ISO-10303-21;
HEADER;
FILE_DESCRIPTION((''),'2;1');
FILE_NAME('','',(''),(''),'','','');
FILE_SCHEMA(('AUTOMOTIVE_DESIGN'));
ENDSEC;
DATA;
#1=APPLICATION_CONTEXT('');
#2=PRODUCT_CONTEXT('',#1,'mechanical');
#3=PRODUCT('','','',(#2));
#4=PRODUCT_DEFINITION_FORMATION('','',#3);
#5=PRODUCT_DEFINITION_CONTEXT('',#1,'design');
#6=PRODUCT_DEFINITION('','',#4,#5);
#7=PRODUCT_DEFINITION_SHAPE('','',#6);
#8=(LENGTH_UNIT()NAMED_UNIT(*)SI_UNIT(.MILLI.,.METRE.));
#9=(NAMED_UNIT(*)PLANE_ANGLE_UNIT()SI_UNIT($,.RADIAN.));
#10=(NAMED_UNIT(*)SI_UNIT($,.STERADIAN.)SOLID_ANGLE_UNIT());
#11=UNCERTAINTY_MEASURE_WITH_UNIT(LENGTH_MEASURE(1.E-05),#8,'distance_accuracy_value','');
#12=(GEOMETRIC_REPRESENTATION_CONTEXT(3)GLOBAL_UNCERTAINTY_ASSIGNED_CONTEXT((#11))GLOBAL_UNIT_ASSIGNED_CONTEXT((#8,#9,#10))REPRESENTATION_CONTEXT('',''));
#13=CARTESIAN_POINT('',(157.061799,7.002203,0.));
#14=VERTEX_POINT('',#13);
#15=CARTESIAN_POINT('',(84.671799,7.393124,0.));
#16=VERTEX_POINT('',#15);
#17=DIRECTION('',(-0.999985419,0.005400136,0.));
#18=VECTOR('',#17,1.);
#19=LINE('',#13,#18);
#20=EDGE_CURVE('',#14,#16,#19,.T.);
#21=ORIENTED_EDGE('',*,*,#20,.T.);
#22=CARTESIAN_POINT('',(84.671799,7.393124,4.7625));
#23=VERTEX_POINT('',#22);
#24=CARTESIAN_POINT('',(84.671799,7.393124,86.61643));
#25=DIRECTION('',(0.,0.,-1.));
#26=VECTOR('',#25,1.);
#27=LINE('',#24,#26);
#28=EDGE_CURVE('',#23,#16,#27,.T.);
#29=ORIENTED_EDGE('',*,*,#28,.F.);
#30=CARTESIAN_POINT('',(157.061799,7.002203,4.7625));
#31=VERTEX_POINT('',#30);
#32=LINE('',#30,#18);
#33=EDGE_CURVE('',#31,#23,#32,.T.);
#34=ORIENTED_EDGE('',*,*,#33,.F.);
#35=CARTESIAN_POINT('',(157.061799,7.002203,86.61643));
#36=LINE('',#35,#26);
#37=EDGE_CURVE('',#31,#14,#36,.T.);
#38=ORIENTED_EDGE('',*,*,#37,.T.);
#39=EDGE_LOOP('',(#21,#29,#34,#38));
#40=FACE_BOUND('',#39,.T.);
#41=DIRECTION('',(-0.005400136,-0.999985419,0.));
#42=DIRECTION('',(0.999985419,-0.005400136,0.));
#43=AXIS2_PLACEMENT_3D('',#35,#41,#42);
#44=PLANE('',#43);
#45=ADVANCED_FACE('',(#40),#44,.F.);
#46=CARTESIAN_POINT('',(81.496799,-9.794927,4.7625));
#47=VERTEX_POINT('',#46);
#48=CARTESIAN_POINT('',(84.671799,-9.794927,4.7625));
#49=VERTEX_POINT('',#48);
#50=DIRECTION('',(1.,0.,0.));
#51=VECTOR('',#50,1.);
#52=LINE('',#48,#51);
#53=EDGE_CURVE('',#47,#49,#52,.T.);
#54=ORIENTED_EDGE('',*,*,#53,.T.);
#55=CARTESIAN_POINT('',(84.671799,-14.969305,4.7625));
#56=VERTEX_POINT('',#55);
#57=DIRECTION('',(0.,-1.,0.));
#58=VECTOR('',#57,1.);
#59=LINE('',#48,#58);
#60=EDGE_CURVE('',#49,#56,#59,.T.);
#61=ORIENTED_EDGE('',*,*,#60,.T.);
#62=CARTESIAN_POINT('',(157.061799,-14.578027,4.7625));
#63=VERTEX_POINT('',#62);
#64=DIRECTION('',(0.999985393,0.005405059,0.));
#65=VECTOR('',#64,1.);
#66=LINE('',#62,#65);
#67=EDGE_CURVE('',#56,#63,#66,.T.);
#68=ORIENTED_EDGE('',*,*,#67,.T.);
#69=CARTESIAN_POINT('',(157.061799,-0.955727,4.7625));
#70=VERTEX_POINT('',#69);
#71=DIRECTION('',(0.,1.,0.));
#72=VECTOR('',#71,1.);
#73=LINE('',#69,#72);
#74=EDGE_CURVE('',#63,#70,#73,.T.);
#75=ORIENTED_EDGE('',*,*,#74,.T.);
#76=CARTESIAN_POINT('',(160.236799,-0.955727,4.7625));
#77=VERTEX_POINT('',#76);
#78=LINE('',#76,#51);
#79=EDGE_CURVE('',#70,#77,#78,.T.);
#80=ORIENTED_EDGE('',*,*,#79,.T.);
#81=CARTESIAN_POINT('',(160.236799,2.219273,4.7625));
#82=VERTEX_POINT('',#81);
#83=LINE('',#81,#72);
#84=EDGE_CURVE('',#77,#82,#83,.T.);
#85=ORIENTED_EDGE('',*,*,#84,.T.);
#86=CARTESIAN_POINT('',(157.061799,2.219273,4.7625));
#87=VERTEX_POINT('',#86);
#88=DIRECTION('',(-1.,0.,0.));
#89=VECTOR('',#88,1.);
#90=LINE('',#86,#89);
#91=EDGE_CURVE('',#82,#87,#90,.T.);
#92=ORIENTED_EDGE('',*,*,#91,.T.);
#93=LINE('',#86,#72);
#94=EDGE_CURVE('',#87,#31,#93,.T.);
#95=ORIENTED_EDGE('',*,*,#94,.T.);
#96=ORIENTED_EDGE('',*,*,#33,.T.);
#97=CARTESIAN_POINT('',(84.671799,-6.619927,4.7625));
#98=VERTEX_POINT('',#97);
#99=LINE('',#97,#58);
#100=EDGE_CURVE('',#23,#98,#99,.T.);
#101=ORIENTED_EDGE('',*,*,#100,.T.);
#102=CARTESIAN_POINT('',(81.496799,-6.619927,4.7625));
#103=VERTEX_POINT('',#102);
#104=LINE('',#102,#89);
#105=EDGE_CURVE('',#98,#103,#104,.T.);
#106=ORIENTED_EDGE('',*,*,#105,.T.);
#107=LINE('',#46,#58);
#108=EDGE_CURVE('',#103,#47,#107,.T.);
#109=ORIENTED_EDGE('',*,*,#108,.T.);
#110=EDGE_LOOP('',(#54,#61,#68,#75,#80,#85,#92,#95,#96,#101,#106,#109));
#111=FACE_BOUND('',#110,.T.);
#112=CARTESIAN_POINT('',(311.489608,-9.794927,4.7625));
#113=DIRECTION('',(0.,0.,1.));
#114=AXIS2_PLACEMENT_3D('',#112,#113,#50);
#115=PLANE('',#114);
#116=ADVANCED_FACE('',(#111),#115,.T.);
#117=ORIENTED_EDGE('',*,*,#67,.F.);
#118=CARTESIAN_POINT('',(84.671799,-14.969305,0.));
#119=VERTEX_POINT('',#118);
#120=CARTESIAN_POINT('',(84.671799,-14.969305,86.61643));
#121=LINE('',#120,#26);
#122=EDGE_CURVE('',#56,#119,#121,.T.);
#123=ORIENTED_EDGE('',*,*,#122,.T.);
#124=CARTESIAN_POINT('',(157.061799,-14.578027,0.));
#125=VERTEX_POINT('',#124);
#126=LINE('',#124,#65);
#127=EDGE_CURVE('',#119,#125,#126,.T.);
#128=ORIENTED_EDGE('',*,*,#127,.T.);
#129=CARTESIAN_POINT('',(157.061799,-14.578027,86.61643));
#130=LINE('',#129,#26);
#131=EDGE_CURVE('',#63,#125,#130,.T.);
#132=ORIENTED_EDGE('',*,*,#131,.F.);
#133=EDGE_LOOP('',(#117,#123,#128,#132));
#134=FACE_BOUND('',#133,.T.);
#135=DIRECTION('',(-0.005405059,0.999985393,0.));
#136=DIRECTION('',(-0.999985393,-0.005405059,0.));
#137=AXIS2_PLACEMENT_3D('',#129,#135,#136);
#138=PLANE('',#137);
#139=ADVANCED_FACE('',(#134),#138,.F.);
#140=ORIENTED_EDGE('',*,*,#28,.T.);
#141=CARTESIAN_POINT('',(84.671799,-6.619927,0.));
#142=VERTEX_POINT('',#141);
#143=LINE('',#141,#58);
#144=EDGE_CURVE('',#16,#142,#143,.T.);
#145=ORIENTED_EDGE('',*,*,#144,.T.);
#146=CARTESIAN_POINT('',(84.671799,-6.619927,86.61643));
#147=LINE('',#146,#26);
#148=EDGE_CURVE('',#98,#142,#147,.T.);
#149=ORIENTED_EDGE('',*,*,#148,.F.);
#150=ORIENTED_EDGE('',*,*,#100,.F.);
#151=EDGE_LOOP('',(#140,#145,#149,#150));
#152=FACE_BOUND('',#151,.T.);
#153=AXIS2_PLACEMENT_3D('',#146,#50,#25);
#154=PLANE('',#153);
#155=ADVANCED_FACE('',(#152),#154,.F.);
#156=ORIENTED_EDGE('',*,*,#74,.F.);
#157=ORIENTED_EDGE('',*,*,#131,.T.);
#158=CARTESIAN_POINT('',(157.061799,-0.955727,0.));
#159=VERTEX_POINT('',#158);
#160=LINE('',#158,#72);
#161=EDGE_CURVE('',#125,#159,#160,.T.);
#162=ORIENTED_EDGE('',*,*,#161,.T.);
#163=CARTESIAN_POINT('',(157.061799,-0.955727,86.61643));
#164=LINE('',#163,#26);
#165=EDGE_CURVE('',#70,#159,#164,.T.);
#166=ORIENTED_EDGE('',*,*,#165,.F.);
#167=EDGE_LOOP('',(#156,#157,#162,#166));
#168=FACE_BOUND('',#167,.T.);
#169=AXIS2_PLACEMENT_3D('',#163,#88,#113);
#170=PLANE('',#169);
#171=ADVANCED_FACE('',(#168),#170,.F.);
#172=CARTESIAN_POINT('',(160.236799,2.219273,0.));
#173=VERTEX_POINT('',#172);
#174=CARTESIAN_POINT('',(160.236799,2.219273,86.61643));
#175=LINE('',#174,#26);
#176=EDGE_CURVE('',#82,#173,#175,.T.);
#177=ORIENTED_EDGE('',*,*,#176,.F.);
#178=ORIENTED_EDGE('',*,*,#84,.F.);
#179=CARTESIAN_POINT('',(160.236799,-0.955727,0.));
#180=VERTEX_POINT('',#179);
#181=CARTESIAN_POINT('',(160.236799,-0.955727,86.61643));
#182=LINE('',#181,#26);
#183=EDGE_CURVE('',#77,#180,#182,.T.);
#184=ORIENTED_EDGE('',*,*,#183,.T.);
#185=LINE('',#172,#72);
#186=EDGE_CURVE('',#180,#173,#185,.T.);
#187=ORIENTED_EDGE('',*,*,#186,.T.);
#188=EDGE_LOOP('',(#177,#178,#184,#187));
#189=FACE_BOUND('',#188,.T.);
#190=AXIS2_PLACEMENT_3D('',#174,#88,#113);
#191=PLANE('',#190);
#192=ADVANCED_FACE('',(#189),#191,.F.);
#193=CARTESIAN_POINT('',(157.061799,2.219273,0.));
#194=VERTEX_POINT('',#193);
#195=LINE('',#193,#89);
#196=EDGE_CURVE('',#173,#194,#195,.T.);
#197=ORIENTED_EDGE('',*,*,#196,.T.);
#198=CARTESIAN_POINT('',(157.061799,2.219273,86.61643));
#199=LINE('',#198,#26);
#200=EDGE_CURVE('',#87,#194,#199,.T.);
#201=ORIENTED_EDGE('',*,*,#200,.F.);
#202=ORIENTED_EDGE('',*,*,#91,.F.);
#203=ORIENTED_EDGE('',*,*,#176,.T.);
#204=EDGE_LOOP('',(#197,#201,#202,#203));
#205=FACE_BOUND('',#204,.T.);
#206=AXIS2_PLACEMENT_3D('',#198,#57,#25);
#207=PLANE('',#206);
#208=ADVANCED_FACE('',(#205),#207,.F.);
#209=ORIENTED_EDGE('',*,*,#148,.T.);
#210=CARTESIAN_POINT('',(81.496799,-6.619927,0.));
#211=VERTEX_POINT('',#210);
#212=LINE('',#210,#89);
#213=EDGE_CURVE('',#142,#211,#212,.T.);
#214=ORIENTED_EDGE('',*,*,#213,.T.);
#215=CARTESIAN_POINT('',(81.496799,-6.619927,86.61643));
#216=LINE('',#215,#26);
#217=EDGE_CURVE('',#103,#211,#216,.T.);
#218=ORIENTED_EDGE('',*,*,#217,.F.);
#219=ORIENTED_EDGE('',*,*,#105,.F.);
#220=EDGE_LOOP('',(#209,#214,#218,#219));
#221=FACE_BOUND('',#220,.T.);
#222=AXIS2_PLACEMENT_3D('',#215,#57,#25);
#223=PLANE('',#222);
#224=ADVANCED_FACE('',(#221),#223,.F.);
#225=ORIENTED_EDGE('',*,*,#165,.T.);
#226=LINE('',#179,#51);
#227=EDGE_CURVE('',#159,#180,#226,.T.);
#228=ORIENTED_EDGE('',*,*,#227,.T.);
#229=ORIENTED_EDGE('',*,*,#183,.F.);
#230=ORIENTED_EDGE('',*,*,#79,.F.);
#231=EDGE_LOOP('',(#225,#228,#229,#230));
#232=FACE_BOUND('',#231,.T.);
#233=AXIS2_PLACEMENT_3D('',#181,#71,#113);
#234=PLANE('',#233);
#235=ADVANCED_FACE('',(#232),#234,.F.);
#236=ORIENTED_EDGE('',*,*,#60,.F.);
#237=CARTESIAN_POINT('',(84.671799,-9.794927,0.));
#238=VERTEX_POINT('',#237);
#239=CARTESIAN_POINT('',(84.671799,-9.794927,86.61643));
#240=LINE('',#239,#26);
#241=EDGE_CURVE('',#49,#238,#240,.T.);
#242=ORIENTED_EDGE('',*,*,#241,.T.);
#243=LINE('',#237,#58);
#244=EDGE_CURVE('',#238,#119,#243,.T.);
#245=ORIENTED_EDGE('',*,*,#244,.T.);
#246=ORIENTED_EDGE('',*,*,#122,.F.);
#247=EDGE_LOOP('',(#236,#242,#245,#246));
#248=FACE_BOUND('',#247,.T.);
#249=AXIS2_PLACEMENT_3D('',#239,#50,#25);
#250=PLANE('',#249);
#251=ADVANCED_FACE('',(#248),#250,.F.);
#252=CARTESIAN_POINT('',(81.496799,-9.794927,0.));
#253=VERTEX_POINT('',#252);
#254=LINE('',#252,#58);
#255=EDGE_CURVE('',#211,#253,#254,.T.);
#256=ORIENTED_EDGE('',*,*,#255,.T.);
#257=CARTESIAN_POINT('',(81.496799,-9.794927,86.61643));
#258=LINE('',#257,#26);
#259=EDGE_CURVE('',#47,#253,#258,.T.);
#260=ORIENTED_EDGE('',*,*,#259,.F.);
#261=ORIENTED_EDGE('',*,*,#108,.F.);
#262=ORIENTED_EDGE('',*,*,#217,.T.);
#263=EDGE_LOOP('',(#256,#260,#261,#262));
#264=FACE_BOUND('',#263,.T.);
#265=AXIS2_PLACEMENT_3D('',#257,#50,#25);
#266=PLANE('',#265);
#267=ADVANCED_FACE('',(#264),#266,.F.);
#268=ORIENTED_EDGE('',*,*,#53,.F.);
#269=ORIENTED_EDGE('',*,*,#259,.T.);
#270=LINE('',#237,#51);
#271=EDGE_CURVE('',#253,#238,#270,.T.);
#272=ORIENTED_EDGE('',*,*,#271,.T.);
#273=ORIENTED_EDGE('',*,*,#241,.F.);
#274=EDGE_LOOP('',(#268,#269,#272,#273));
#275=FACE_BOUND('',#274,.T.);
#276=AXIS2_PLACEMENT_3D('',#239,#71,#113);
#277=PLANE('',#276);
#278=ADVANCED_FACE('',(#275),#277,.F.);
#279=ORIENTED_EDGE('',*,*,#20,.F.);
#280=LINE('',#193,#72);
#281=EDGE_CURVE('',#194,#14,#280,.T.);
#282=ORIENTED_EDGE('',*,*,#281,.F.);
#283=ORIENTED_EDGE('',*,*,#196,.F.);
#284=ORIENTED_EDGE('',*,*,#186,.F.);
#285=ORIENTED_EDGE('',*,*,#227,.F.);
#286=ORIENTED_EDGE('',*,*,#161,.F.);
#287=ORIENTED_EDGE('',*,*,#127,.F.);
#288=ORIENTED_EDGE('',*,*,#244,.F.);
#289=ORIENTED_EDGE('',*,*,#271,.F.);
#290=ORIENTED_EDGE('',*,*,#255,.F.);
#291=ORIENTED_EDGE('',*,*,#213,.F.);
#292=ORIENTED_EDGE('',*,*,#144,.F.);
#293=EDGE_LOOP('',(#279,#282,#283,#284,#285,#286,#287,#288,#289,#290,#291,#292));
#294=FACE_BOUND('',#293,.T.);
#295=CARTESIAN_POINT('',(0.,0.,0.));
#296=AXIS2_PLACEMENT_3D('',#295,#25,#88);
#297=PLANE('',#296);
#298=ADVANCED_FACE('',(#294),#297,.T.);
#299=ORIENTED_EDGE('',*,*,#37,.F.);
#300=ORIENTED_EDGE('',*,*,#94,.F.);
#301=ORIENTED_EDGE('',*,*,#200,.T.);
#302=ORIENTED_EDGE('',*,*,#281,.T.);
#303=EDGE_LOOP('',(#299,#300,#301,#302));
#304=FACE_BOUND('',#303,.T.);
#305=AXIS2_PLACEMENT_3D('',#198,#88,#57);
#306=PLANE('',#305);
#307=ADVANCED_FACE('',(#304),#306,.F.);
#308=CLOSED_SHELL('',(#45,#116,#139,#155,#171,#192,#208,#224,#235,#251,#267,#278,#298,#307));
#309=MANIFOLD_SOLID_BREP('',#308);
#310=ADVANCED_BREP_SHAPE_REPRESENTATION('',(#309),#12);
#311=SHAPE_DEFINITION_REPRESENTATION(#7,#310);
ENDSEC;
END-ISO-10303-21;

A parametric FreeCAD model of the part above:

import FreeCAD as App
import Part
import Sketcher

V = App.Vector
Q = App.Units.Quantity


def add_polygon(sketch, points):
    """Adds a closed chain of lines whose ends are joined by coincident constraints."""
    first, n = sketch.GeometryCount, len(points)
    for a, b in zip(points, points[1:] + points[:1]):
        sketch.addGeometry(Part.LineSegment(App.Vector(*a, 0), App.Vector(*b, 0)), False)
    for i in range(n):
        sketch.addConstraint(Sketcher.Constraint("Coincident", first + i, 2, first + (i + 1) % n, 1))

doc = App.newDocument("Part")
body = doc.addObject("PartDesign::Body", "Body")

sketch1 = body.newObject("Sketcher::SketchObject", "Sketch")
sketch1.AttachmentSupport = (doc.getObject("XY_Plane"), [""])
sketch1.MapMode = "FlatFace"
add_polygon(sketch1, [(81.496799, -9.794927), (84.671799, -9.794927), (84.671799, -14.969305), (157.061799, -14.578027), (157.061799, -0.955727), (160.236799, -0.955727), (160.236799, 2.219273), (157.061799, 2.219273), (157.061799, 7.002203), (84.671799, 7.393124), (84.671799, -6.619927), (81.496799, -6.619927)])
sketch1.addConstraint(Sketcher.Constraint("Horizontal", 0))
sketch1.addConstraint(Sketcher.Constraint("Vertical", 1))
sketch1.addConstraint(Sketcher.Constraint("Vertical", 3))
sketch1.addConstraint(Sketcher.Constraint("Horizontal", 4))
sketch1.addConstraint(Sketcher.Constraint("Vertical", 5))
sketch1.addConstraint(Sketcher.Constraint("Horizontal", 6))
sketch1.addConstraint(Sketcher.Constraint("Vertical", 7))
sketch1.addConstraint(Sketcher.Constraint("Vertical", 9))
sketch1.addConstraint(Sketcher.Constraint("Horizontal", 10))
sketch1.addConstraint(Sketcher.Constraint("Vertical", 11))
sketch1.addConstraint(Sketcher.Constraint("DistanceX", 0, 1, 0, 2, Q("0.125 in")))
sketch1.addConstraint(Sketcher.Constraint("DistanceX", 4, 1, 4, 2, Q("0.125 in")))
sketch1.addConstraint(Sketcher.Constraint("DistanceX", 6, 2, 6, 1, Q("0.125 in")))
sketch1.addConstraint(Sketcher.Constraint("DistanceX", 10, 2, 10, 1, Q("0.125 in")))
sketch1.addConstraint(Sketcher.Constraint("DistanceY", 5, 1, 5, 2, Q("0.125 in")))
sketch1.addConstraint(Sketcher.Constraint("DistanceY", 11, 2, 11, 1, Q("0.125 in")))
sketch1.addConstraint(Sketcher.Constraint("DistanceX", 1, 2, 2, 2, Q("2.85 in")))
sketch1.addConstraint(Sketcher.Constraint("DistanceY", 0, 2, 3, 2, Q("0.348 in")))
sketch1.addConstraint(Sketcher.Constraint("DistanceY", 3, 1, 3, 2, Q("13.6223 mm")))
sketch1.addConstraint(Sketcher.Constraint("DistanceY", 7, 1, 7, 2, Q("4.78293 mm")))
sketch1.addConstraint(Sketcher.Constraint("DistanceY", 9, 2, 9, 1, Q("14.013052 mm")))
sketch1.addConstraint(Sketcher.Constraint("DistanceX", -1, 1, 0, 2, Q("84.671799 mm")))
sketch1.addConstraint(Sketcher.Constraint("DistanceY", 1, 2, 1, 1, Q("5.174378 mm")))
sketch1.addConstraint(Sketcher.Constraint("DistanceY", 0, 2, -1, 1, Q("9.794927 mm")))
pad1 = body.newObject("PartDesign::Pad", "Pad")
pad1.Profile = sketch1
pad1.Length = Q("0.1875 in")

doc.recompute()
